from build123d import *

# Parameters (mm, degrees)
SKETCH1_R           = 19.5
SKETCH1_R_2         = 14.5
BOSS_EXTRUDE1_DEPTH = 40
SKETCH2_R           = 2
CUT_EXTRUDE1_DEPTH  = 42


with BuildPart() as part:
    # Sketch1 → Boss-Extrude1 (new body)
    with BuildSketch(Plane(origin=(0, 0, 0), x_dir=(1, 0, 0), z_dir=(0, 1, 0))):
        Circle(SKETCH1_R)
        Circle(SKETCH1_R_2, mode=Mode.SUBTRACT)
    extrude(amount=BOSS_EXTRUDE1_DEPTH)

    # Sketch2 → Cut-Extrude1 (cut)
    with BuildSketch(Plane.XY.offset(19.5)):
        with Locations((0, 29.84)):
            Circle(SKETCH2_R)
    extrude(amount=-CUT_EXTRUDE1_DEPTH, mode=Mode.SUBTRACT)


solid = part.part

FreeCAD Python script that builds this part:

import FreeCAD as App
import Part
import Sketcher
from FreeCAD import Vector

doc = App.newDocument("Part")
params = doc.addObject("Spreadsheet::Sheet", "Params")
for row, (alias, value) in enumerate([
    ("sketch1_diameter", "39 mm"),
    ("sketch1_diameter2", "29 mm"),
    ("pad1_length", "40 mm"),
    ("sketch2_diameter", "4 mm"),
    ("pocket1_length", "42 mm"),
], start=1):
    params.set(f"A{row}", alias)
    params.set(f"B{row}", "=" + value)
    params.setAlias(f"B{row}", alias)

body = doc.addObject("PartDesign::Body", "Body")

# Sketch on XZ plane
sketch1 = body.newObject("Sketcher::SketchObject", "Sketch")
sketch1.AttachmentSupport = (doc.getObject("XZ_Plane"), [""])
sketch1.MapMode = "FlatFace"
sketch1.addGeometry(Part.Circle(Vector(0, 0, 0), Vector(0, 0, 1), 19.5), False)
sketch1.addGeometry(Part.Circle(Vector(0, 0, 0), Vector(0, 0, 1), 14.5), False)
sketch1.addConstraint(Sketcher.Constraint("Coincident", 0, 3, -1, 1))
sketch1.addConstraint(Sketcher.Constraint("Coincident", 1, 3, -1, 1))
sketch1.addConstraint(Sketcher.Constraint("Diameter", 0, 39.0))
sketch1.addConstraint(Sketcher.Constraint("Diameter", 1, 29.0))
sketch1.setExpression("Constraints[2]", "Params.sketch1_diameter")
sketch1.setExpression("Constraints[3]", "Params.sketch1_diameter2")
pad1 = body.newObject("PartDesign::Pad", "Pad")
pad1.Profile = sketch1
pad1.setExpression("Length", "Params.pad1_length")
pad1.Reversed = True

# Sketch on XY plane
sketch2 = body.newObject("Sketcher::SketchObject", "Sketch001")
sketch2.AttachmentSupport = (doc.getObject("XY_Plane"), [""])
sketch2.MapMode = "FlatFace"
sketch2.AttachmentOffset = App.Placement(Vector(0, 0, 19.5), App.Rotation())
sketch2.addGeometry(Part.Circle(Vector(0, 29.84, 0), Vector(0, 0, 1), 2), False)
sketch2.addConstraint(Sketcher.Constraint("PointOnObject", 0, 3, -2))
sketch2.addConstraint(Sketcher.Constraint("Diameter", 0, 4.0))
sketch2.addConstraint(Sketcher.Constraint("DistanceY", -1, 1, 0, 3, 29.84))
sketch2.setExpression("Constraints[1]", "Params.sketch2_diameter")
pocket1 = body.newObject("PartDesign::Pocket", "Pocket")
pocket1.Profile = sketch2
pocket1.setExpression("Length", "Params.pocket1_length")

doc.recompute()
